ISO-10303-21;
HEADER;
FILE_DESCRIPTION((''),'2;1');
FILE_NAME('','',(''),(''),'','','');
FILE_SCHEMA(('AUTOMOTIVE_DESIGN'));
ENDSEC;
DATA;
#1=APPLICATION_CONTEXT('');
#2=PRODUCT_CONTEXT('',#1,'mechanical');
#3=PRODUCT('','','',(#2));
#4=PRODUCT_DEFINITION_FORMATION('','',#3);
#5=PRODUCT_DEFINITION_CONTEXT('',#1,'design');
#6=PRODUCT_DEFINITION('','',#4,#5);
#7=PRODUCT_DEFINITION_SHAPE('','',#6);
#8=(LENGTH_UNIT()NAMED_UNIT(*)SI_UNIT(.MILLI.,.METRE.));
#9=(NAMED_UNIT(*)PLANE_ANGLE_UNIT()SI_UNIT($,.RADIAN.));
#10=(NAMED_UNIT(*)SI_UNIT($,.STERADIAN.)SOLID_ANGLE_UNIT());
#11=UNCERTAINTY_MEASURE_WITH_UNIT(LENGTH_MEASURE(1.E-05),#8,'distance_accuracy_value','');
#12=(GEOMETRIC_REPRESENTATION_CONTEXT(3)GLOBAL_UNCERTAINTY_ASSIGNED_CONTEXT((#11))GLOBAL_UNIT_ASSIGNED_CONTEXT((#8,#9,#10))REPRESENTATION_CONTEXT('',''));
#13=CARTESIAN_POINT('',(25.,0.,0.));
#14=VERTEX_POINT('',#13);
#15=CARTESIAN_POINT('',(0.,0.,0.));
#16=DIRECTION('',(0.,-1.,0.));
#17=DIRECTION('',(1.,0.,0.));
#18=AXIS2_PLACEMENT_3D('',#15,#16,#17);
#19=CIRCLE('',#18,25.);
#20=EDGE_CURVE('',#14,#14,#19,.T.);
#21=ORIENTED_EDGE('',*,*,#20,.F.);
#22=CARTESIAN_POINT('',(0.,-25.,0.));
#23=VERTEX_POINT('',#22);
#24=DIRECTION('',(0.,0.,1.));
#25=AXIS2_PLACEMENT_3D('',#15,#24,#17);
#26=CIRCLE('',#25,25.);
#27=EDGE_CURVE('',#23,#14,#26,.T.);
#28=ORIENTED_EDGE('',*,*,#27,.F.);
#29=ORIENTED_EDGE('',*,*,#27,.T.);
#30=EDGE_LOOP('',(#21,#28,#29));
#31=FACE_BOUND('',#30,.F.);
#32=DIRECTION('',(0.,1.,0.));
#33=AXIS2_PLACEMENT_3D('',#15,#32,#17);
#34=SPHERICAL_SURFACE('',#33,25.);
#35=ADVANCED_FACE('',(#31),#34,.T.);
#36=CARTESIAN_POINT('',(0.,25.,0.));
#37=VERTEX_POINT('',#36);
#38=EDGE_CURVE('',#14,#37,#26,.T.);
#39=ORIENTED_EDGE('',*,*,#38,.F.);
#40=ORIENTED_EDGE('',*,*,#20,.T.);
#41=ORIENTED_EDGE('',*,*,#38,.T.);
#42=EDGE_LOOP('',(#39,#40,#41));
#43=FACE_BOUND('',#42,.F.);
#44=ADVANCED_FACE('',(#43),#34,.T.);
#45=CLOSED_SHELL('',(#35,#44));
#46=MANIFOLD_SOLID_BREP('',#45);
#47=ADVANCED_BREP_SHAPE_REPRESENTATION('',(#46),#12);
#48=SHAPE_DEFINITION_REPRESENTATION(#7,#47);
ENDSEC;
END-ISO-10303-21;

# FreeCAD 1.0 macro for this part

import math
import FreeCAD as App
import Part
import Sketcher

V = App.Vector
Q = App.Units.Quantity

doc = App.newDocument("Part")
body = doc.addObject("PartDesign::Body", "Body")

# Sketch on XY plane
sketch1 = doc.addObject("Sketcher::SketchObject", "Sketch")
body.addObject(sketch1)
sketch1.AttachmentSupport = (doc.XY_Plane, [""])
sketch1.MapMode = "FlatFace"
sketch1.addGeometry(Part.ArcOfCircle(Part.Circle(V(0, 0, 0), V(0, 0, 1), 25), math.radians(-90), math.radians(90)), False)
sketch1.addGeometry(Part.LineSegment(V(0, 25, 0), V(0, -25, 0)), False)
sketch1.addConstraint(Sketcher.Constraint("Coincident", 0, 1, 1, 2))
sketch1.addConstraint(Sketcher.Constraint("Coincident", 1, 1, 0, 2))
sketch1.addConstraint(Sketcher.Constraint("Vertical", 1))
sketch1.addConstraint(Sketcher.Constraint("Coincident", 0, 3, -1, 1))
sketch1.addConstraint(Sketcher.Constraint("PointOnObject", 0, 1, -2))
sketch1.addConstraint(Sketcher.Constraint("Radius", 0, Q("25 mm")))
revolution = doc.addObject("PartDesign::Revolution", "Revolution")
body.addObject(revolution)
revolution.Profile = sketch1
revolution.ReferenceAxis = (sketch1, ["V_Axis"])
revolution.Angle = 360

doc.recompute()
